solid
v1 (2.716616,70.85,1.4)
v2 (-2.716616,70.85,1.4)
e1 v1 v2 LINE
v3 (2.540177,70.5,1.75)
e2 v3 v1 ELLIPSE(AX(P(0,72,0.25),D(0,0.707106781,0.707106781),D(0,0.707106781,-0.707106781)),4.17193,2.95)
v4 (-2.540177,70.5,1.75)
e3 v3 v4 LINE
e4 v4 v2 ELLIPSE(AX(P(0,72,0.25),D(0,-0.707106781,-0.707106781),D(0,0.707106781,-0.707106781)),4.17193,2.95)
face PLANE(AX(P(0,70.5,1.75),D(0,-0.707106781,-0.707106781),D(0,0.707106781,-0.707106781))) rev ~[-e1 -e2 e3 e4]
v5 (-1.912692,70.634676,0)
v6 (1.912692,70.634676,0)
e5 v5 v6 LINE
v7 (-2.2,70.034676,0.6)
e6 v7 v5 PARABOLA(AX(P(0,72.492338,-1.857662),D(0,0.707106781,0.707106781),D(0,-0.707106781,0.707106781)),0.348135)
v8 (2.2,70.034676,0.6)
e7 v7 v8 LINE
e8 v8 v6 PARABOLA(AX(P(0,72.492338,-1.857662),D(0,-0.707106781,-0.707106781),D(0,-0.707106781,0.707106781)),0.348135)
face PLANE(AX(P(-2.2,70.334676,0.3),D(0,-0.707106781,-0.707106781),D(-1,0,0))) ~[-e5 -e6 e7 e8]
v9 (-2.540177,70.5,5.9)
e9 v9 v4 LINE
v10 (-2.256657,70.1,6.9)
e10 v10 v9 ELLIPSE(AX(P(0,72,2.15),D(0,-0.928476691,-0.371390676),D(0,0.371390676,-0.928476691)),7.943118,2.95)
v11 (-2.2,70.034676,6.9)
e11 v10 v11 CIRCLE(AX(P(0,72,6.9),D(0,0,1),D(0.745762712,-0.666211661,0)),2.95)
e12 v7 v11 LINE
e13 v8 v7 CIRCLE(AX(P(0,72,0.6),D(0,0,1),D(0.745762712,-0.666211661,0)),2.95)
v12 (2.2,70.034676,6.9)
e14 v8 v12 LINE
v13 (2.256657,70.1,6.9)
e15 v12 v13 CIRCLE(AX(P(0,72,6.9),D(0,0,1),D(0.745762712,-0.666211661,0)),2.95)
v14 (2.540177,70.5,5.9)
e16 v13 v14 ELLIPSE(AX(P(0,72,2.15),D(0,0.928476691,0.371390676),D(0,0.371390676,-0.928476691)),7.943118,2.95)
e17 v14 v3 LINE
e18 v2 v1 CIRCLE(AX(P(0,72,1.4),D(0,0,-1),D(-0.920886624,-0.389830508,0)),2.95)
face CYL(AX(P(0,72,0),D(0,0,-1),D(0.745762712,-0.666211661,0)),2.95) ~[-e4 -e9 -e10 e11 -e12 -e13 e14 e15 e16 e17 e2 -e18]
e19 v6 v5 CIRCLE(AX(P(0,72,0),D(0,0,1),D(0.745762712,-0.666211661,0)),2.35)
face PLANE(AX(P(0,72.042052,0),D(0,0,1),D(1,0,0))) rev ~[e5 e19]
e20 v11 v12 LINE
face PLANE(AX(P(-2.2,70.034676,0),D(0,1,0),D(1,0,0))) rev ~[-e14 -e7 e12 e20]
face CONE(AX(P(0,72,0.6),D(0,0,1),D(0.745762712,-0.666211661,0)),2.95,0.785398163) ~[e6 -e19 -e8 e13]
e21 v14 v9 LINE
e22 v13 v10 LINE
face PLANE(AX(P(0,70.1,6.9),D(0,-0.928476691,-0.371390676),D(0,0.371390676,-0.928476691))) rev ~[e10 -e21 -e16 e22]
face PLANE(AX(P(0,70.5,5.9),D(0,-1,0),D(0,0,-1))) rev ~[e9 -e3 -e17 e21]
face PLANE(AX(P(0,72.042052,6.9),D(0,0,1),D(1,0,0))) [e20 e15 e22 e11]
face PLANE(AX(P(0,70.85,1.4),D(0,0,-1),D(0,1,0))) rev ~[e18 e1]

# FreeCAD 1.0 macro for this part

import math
import FreeCAD as App
import Part
import Sketcher

V = App.Vector
Q = App.Units.Quantity


def edges_at(feature, points):
    """Names of the edges that pass closest to the given points."""
    edges = feature.Shape.Edges
    near = lambda p: min(range(len(edges)), key=lambda i: edges[i].distToShape(Part.Vertex(*p))[0])
    return sorted({f"Edge{near(p) + 1}" for p in points})


def add_polygon(sketch, points):
    """Adds a closed chain of lines whose ends are joined by coincident constraints."""
    first, n = sketch.GeometryCount, len(points)
    for a, b in zip(points, points[1:] + points[:1]):
        sketch.addGeometry(Part.LineSegment(App.Vector(*a, 0), App.Vector(*b, 0)), False)
    for i in range(n):
        sketch.addConstraint(Sketcher.Constraint("Coincident", first + i, 2, first + (i + 1) % n, 1))

doc = App.newDocument("Part")
params = doc.addObject("Spreadsheet::Sheet", "Params")
for row, (alias, value) in enumerate([
    ("sketch1_radius", "2.95 mm"),
    ("sketch1_width", "4.4 mm"),
    ("pad1_length", "6.9 mm"),
    ("sketch2_width", "6.9 mm"),
    ("sketch2_height", "5.5 mm"),
    ("sketch2_width2", "6.15 mm"),
    ("sketch2_height2", "4.15 mm"),
    ("chamfer_size", "0.6 mm"),
], start=1):
    params.set(f"A{row}", alias)
    params.set(f"B{row}", "=" + value)
    params.setAlias(f"B{row}", alias)

body = doc.addObject("PartDesign::Body", "Body")

# Sketch on XY plane
sketch1 = body.newObject("Sketcher::SketchObject", "Sketch")
sketch1.AttachmentSupport = (doc.getObject("XY_Plane"), [""])
sketch1.MapMode = "FlatFace"
sketch1.addGeometry([
    Part.ArcOfCircle(Part.Circle(V(0, 0, 0), V(0, 0, 1), 3), math.radians(-42), math.radians(222)),
    Part.LineSegment(V(-2.2, -2, 0), V(2.2, -2, 0)),
], False)
sketch1.addConstraint([
    Sketcher.Constraint("Coincident", 0, 1, 1, 2),
    Sketcher.Constraint("Coincident", 1, 1, 0, 2),
    Sketcher.Constraint("Horizontal", 1),
    Sketcher.Constraint("Coincident", 0, 3, -1, 1),
    Sketcher.Constraint("Radius", 0, Q("2.95 mm")),
    Sketcher.Constraint("DistanceX", 1, 1, 1, 2, Q("4.4 mm")),
])
sketch1.setExpression("Constraints[4]", "Params.sketch1_radius")
sketch1.setExpression("Constraints[5]", "Params.sketch1_width")
pad1 = body.newObject("PartDesign::Pad", "Pad")
pad1.Profile = sketch1
pad1.setExpression("Length", "Params.pad1_length")

# Sketch on YZ plane
sketch2 = body.newObject("Sketcher::SketchObject", "Sketch001")
sketch2.AttachmentSupport = (doc.getObject("YZ_Plane"), [""])
sketch2.MapMode = "FlatFace"
add_polygon(sketch2, [(-1.9, 6.9), (-1.5, 5.9), (-1.5, 1.75), (-1.15, 1.4), (5, 1.4), (5, 6.9)])  # lines 0-5
sketch2.addConstraint([
    Sketcher.Constraint("Vertical", 1),
    Sketcher.Constraint("Horizontal", 3),
    Sketcher.Constraint("Vertical", 4),
    Sketcher.Constraint("Horizontal", 5),
    Sketcher.Constraint("Angle", 2, Q("-45 deg")),
    Sketcher.Constraint("DistanceX", 5, 2, 5, 1, Q("6.9 mm")),
    Sketcher.Constraint("DistanceY", 4, 1, 4, 2, Q("5.5 mm")),
    Sketcher.Constraint("DistanceX", -1, 1, 3, 2, Q("5 mm")),
    Sketcher.Constraint("DistanceY", 0, 2, 4, 2, Q("1 mm")),
    Sketcher.Constraint("DistanceX", 3, 1, 3, 2, Q("6.15 mm")),
    Sketcher.Constraint("DistanceY", 1, 2, 1, 1, Q("4.15 mm")),
    Sketcher.Constraint("DistanceY", -1, 1, 0, 2, Q("5.9 mm")),
])
sketch2.setExpression("Constraints[11]", "Params.sketch2_width")
sketch2.setExpression("Constraints[12]", "Params.sketch2_height")
sketch2.setExpression("Constraints[15]", "Params.sketch2_width2")
sketch2.setExpression("Constraints[16]", "Params.sketch2_height2")
pocket1 = body.newObject("PartDesign::Pocket", "Pocket")
pocket1.Profile = sketch2
pocket1.Type = "ThroughAll"
pocket1.Midplane = True
doc.recompute()

chamfer = body.newObject("PartDesign::Chamfer", "Chamfer")
chamfer.Base = (pocket1, edges_at(pocket1, [(0, 2.95, 0), (0, -1.965, 0)]))
chamfer.setExpression("Size", "Params.chamfer_size")
body2 = doc.addObject("PartDesign::Body", "Body001")
doc.recompute()

body.Placement = App.Placement(V(0, 72, 0), App.Rotation(V(0, 0, 1), 0))
boolean = body2.newObject("PartDesign::Boolean", "Boolean")
boolean.Type = "Fuse"
boolean.addObjects([body])

doc.recompute()
